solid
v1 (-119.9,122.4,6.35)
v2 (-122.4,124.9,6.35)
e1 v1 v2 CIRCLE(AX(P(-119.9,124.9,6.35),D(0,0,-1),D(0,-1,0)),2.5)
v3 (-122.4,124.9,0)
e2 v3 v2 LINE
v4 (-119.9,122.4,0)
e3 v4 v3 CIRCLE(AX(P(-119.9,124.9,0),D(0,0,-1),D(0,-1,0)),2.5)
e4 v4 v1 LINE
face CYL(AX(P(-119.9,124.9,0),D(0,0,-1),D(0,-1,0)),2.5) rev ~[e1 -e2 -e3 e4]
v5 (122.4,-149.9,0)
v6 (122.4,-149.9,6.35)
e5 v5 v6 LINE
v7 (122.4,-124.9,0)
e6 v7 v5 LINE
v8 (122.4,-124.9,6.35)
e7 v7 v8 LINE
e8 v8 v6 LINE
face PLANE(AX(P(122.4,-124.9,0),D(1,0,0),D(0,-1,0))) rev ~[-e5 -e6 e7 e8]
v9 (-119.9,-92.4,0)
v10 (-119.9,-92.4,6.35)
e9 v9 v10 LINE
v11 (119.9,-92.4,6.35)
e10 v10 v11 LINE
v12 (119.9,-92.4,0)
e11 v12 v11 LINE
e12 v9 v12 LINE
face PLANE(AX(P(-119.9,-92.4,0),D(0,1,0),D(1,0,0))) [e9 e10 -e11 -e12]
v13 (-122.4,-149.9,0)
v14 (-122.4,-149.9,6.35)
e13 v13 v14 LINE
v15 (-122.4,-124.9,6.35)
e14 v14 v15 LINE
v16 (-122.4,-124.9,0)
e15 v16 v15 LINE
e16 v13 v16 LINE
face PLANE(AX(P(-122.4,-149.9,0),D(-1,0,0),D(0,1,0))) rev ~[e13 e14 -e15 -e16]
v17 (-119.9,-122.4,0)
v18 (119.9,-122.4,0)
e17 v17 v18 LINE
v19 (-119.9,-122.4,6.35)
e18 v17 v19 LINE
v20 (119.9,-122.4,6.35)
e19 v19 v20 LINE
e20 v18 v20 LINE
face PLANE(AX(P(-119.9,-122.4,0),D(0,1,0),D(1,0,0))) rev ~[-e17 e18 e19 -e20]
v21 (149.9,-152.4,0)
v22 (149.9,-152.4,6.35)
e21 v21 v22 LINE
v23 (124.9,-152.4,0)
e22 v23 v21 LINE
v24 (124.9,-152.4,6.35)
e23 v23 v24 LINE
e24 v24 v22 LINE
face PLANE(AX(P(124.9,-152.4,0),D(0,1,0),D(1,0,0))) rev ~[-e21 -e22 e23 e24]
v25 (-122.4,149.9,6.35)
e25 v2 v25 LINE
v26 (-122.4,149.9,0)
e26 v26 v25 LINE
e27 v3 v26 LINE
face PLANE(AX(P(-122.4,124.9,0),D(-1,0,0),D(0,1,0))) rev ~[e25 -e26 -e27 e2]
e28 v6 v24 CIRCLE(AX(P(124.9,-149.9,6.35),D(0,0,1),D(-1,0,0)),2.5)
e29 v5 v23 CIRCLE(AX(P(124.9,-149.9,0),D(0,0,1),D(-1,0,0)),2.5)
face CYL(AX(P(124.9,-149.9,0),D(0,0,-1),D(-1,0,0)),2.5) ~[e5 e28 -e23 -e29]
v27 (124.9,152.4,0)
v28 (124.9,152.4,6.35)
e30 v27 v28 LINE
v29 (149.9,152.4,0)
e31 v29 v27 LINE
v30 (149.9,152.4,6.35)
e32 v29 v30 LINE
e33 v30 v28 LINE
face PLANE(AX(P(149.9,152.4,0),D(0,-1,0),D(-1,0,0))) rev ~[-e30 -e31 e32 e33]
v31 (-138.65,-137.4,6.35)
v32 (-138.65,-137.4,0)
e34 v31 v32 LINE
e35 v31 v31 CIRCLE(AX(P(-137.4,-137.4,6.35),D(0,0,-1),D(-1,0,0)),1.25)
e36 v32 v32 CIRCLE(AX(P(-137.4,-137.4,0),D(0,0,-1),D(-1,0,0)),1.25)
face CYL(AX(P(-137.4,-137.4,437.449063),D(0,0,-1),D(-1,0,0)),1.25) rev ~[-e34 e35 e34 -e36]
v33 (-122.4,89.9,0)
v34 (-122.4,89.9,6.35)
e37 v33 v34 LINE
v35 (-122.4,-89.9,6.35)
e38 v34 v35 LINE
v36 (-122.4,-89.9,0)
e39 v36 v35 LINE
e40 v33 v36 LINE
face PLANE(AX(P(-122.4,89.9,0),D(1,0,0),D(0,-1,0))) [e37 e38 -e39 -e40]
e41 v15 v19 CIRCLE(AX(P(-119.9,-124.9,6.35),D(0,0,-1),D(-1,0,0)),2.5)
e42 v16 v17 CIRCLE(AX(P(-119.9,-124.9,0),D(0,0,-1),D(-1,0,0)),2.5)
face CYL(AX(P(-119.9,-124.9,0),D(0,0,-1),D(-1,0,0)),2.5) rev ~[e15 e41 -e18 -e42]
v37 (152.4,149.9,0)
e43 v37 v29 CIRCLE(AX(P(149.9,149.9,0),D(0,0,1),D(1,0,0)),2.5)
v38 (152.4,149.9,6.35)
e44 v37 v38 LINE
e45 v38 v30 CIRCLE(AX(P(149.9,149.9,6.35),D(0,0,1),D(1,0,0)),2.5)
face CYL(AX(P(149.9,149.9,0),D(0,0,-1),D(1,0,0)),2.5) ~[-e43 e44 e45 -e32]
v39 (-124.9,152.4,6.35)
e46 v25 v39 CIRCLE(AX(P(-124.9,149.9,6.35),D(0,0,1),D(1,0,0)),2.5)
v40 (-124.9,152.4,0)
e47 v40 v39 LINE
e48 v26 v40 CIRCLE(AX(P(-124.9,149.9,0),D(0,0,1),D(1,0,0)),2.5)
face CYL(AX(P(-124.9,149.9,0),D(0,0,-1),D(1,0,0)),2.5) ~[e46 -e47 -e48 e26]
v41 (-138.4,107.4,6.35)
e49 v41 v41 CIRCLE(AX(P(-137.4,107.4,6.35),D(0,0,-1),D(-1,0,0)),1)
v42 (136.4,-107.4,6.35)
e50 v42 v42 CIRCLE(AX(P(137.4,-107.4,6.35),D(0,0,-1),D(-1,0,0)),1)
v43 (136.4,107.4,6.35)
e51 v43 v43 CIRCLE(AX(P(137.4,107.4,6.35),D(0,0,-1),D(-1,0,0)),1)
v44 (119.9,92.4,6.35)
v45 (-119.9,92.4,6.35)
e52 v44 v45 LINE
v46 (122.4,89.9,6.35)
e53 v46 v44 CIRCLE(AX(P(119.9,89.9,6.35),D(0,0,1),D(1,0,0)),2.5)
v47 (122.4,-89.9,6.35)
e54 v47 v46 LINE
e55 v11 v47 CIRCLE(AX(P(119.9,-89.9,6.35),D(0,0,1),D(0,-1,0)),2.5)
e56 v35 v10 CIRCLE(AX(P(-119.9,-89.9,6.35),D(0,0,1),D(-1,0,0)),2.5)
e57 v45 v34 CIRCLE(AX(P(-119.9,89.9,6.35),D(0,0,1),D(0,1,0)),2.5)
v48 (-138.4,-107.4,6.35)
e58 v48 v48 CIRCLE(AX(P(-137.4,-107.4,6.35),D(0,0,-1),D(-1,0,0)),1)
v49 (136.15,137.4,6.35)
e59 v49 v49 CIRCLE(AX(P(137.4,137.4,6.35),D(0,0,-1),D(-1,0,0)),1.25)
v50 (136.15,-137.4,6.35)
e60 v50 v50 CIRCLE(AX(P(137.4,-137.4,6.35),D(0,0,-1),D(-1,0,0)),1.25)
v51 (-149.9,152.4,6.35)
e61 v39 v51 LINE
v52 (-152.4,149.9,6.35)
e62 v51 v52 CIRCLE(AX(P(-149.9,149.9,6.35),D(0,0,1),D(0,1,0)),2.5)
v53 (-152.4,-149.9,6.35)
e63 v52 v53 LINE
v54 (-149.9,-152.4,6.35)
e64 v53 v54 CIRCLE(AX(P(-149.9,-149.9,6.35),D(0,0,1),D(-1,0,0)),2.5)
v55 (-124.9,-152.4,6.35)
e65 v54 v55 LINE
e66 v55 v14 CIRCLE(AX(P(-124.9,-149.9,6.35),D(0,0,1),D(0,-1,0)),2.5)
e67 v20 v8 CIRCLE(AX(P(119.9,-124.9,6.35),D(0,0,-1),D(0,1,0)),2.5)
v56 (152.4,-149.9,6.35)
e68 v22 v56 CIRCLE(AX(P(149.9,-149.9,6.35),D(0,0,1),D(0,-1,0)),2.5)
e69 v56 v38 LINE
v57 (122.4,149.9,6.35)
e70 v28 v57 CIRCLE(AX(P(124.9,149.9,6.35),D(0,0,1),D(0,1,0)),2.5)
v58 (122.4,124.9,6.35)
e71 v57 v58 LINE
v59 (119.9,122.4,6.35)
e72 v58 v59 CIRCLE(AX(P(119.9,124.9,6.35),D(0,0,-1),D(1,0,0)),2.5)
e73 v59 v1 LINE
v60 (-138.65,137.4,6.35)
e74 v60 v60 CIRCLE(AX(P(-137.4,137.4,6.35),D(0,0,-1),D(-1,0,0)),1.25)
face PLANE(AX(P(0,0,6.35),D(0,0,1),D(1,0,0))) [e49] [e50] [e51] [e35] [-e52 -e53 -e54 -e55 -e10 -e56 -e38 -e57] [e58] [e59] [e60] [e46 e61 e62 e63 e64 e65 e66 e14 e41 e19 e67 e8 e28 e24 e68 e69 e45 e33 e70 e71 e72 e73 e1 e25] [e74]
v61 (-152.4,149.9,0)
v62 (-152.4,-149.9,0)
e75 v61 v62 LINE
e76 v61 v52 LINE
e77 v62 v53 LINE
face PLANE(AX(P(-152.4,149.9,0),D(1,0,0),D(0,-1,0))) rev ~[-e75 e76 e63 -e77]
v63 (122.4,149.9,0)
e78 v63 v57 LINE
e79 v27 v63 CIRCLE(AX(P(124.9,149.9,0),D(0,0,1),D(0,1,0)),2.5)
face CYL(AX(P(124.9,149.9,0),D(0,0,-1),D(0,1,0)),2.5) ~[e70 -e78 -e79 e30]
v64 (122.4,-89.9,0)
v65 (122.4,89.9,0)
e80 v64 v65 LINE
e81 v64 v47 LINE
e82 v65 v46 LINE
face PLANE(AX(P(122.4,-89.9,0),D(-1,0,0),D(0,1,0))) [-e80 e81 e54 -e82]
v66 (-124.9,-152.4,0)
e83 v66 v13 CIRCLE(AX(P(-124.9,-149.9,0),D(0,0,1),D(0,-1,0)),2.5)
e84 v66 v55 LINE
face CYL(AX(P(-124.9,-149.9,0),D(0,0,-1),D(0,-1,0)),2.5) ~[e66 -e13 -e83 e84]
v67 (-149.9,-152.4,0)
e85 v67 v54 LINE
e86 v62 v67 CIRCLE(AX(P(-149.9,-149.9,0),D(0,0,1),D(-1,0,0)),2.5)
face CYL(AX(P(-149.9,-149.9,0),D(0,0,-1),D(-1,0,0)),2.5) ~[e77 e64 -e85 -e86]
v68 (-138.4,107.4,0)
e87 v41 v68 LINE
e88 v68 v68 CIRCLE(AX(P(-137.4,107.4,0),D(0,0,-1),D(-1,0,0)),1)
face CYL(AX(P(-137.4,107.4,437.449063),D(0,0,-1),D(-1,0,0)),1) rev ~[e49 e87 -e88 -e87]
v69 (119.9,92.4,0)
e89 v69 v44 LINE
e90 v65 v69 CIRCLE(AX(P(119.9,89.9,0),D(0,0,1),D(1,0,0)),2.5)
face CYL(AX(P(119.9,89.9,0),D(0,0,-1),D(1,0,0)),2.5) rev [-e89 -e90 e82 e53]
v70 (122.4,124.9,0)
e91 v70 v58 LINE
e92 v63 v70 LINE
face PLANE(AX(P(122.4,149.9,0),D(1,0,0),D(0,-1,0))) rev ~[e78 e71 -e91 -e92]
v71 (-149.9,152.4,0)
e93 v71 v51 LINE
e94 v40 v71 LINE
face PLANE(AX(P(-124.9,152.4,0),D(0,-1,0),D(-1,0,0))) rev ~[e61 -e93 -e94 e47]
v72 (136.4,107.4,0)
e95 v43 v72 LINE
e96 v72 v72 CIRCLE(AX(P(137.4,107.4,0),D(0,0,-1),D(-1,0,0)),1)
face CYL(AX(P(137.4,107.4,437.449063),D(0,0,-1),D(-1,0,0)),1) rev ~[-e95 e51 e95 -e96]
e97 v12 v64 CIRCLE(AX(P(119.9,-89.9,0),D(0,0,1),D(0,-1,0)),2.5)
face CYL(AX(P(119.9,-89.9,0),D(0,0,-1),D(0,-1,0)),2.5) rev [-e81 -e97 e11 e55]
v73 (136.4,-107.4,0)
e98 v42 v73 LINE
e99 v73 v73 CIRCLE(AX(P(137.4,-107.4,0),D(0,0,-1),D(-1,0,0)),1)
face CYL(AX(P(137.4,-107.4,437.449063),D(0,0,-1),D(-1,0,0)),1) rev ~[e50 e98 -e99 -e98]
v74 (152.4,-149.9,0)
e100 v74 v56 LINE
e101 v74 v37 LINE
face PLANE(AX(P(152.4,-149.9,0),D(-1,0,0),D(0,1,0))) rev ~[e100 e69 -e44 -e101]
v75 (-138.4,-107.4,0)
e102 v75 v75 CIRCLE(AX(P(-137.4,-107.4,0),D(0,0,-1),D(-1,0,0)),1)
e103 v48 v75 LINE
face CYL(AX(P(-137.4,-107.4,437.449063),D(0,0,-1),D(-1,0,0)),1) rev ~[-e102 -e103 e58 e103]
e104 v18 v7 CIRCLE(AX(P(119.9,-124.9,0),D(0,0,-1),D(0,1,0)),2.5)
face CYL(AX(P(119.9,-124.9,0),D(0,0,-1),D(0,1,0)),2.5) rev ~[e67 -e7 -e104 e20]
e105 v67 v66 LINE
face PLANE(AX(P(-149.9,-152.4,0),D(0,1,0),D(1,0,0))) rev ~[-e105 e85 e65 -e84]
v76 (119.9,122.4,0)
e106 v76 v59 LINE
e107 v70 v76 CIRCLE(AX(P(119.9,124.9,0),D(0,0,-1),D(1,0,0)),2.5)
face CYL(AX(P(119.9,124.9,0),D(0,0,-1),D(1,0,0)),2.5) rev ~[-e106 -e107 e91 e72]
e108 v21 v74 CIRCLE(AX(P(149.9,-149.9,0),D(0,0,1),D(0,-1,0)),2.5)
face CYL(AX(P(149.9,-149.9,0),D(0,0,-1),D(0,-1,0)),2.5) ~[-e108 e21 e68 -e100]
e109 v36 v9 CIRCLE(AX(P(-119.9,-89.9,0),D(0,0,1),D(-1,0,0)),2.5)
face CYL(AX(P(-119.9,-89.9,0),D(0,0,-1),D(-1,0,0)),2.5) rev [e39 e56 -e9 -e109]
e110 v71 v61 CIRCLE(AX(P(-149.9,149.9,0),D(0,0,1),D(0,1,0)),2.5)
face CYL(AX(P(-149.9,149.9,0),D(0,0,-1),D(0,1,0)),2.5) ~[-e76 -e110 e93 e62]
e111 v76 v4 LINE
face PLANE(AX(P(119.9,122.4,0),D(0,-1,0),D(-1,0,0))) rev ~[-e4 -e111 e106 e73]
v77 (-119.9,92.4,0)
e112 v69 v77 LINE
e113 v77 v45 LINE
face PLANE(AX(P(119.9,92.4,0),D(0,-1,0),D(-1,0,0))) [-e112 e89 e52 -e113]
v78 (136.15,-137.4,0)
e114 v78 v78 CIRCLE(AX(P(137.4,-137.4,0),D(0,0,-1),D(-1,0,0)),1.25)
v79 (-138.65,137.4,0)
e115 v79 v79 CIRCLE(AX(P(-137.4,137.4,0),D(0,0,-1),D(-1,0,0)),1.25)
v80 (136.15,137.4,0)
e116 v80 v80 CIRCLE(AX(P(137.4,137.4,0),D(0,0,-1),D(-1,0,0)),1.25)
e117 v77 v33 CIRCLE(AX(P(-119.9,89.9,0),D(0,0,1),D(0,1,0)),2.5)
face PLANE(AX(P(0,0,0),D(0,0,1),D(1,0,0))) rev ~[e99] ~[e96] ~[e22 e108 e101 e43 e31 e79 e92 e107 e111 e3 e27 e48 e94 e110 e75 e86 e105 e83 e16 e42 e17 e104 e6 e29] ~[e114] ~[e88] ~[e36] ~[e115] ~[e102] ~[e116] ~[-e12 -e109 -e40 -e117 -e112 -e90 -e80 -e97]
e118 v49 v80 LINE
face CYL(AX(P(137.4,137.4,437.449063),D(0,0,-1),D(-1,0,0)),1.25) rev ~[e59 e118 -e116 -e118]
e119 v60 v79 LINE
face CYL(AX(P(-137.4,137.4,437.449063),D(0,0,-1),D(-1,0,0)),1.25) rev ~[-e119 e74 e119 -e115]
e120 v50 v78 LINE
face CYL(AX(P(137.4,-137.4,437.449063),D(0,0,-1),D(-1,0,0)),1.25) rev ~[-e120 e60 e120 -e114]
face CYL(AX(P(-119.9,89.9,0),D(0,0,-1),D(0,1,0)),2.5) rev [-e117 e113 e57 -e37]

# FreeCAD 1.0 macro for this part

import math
import FreeCAD as App
import Part
import Sketcher
Q = App.Units.Quantity

doc = App.newDocument("Part")
body = doc.addObject("PartDesign::Body", "Body")

sketch1 = doc.addObject("Sketcher::SketchObject", "Sketch")
body.addObject(sketch1)
sketch1.AttachmentSupport = (doc.XY_Plane, [""])
sketch1.MapMode = "FlatFace"
sketch1.addGeometry(Part.LineSegment(App.Vector(-119.9, -122.4, 0), App.Vector(119.9, -122.4, 0)), False)
sketch1.addGeometry(Part.ArcOfCircle(Part.Circle(App.Vector(119.9, -124.9, 0), App.Vector(0, 0, 1), 2.5), math.radians(0), math.radians(90)), False)
sketch1.addGeometry(Part.LineSegment(App.Vector(122.4, -124.9, 0), App.Vector(122.4, -149.9, 0)), False)
sketch1.addGeometry(Part.ArcOfCircle(Part.Circle(App.Vector(124.9, -149.9, 0), App.Vector(0, 0, 1), 2.5), math.radians(180), math.radians(270)), False)
sketch1.addGeometry(Part.LineSegment(App.Vector(124.9, -152.4, 0), App.Vector(149.9, -152.4, 0)), False)
sketch1.addGeometry(Part.ArcOfCircle(Part.Circle(App.Vector(149.9, -149.9, 0), App.Vector(0, 0, 1), 2.5), math.radians(-90), math.radians(0)), False)
sketch1.addGeometry(Part.LineSegment(App.Vector(152.4, -149.9, 0), App.Vector(152.4, 149.9, 0)), False)
sketch1.addGeometry(Part.ArcOfCircle(Part.Circle(App.Vector(149.9, 149.9, 0), App.Vector(0, 0, 1), 2.5), math.radians(0), math.radians(90)), False)
sketch1.addGeometry(Part.LineSegment(App.Vector(149.9, 152.4, 0), App.Vector(124.9, 152.4, 0)), False)
sketch1.addGeometry(Part.ArcOfCircle(Part.Circle(App.Vector(124.9, 149.9, 0), App.Vector(0, 0, 1), 2.5), math.radians(90), math.radians(180)), False)
sketch1.addGeometry(Part.LineSegment(App.Vector(122.4, 149.9, 0), App.Vector(122.4, 124.9, 0)), False)
sketch1.addGeometry(Part.ArcOfCircle(Part.Circle(App.Vector(119.9, 124.9, 0), App.Vector(0, 0, 1), 2.5), math.radians(-90), math.radians(0)), False)
sketch1.addGeometry(Part.LineSegment(App.Vector(119.9, 122.4, 0), App.Vector(-119.9, 122.4, 0)), False)
sketch1.addGeometry(Part.ArcOfCircle(Part.Circle(App.Vector(-119.9, 124.9, 0), App.Vector(0, 0, 1), 2.5), math.radians(180), math.radians(270)), False)
sketch1.addGeometry(Part.LineSegment(App.Vector(-122.4, 124.9, 0), App.Vector(-122.4, 149.9, 0)), False)
sketch1.addGeometry(Part.ArcOfCircle(Part.Circle(App.Vector(-124.9, 149.9, 0), App.Vector(0, 0, 1), 2.5), math.radians(0), math.radians(90)), False)
sketch1.addGeometry(Part.LineSegment(App.Vector(-124.9, 152.4, 0), App.Vector(-149.9, 152.4, 0)), False)
sketch1.addGeometry(Part.ArcOfCircle(Part.Circle(App.Vector(-149.9, 149.9, 0), App.Vector(0, 0, 1), 2.5), math.radians(90), math.radians(180)), False)
sketch1.addGeometry(Part.LineSegment(App.Vector(-152.4, 149.9, 0), App.Vector(-152.4, -149.9, 0)), False)
sketch1.addGeometry(Part.ArcOfCircle(Part.Circle(App.Vector(-149.9, -149.9, 0), App.Vector(0, 0, 1), 2.5), math.radians(180), math.radians(270)), False)
sketch1.addGeometry(Part.LineSegment(App.Vector(-149.9, -152.4, 0), App.Vector(-124.9, -152.4, 0)), False)
sketch1.addGeometry(Part.ArcOfCircle(Part.Circle(App.Vector(-124.9, -149.9, 0), App.Vector(0, 0, 1), 2.5), math.radians(-90), math.radians(0)), False)
sketch1.addGeometry(Part.LineSegment(App.Vector(-122.4, -149.9, 0), App.Vector(-122.4, -124.9, 0)), False)
sketch1.addGeometry(Part.ArcOfCircle(Part.Circle(App.Vector(-119.9, -124.9, 0), App.Vector(0, 0, 1), 2.5), math.radians(90), math.radians(180)), False)
sketch1.addGeometry(Part.LineSegment(App.Vector(119.9, -92.4, 0), App.Vector(-119.9, -92.4, 0)), False)
sketch1.addGeometry(Part.ArcOfCircle(Part.Circle(App.Vector(-119.9, -89.9, 0), App.Vector(0, 0, 1), 2.5), math.radians(180), math.radians(270)), False)
sketch1.addGeometry(Part.LineSegment(App.Vector(-122.4, -89.9, 0), App.Vector(-122.4, 89.9, 0)), False)
sketch1.addGeometry(Part.ArcOfCircle(Part.Circle(App.Vector(-119.9, 89.9, 0), App.Vector(0, 0, 1), 2.5), math.radians(90), math.radians(180)), False)
sketch1.addGeometry(Part.LineSegment(App.Vector(-119.9, 92.4, 0), App.Vector(119.9, 92.4, 0)), False)
sketch1.addGeometry(Part.ArcOfCircle(Part.Circle(App.Vector(119.9, 89.9, 0), App.Vector(0, 0, 1), 2.5), math.radians(0), math.radians(90)), False)
sketch1.addGeometry(Part.LineSegment(App.Vector(122.4, 89.9, 0), App.Vector(122.4, -89.9, 0)), False)
sketch1.addGeometry(Part.ArcOfCircle(Part.Circle(App.Vector(119.9, -89.9, 0), App.Vector(0, 0, 1), 2.5), math.radians(-90), math.radians(0)), False)
sketch1.addConstraint(Sketcher.Constraint("Tangent", 0, 2, 1, 2))
sketch1.addConstraint(Sketcher.Constraint("Tangent", 1, 1, 2, 1))
sketch1.addConstraint(Sketcher.Constraint("Tangent", 2, 2, 3, 1))
sketch1.addConstraint(Sketcher.Constraint("Tangent", 3, 2, 4, 1))
sketch1.addConstraint(Sketcher.Constraint("Tangent", 4, 2, 5, 1))
sketch1.addConstraint(Sketcher.Constraint("Tangent", 5, 2, 6, 1))
sketch1.addConstraint(Sketcher.Constraint("Tangent", 6, 2, 7, 1))
sketch1.addConstraint(Sketcher.Constraint("Tangent", 7, 2, 8, 1))
sketch1.addConstraint(Sketcher.Constraint("Tangent", 8, 2, 9, 1))
sketch1.addConstraint(Sketcher.Constraint("Tangent", 9, 2, 10, 1))
sketch1.addConstraint(Sketcher.Constraint("Tangent", 10, 2, 11, 2))
sketch1.addConstraint(Sketcher.Constraint("Tangent", 11, 1, 12, 1))
sketch1.addConstraint(Sketcher.Constraint("Tangent", 12, 2, 13, 2))
sketch1.addConstraint(Sketcher.Constraint("Tangent", 13, 1, 14, 1))
sketch1.addConstraint(Sketcher.Constraint("Tangent", 14, 2, 15, 1))
sketch1.addConstraint(Sketcher.Constraint("Tangent", 15, 2, 16, 1))
sketch1.addConstraint(Sketcher.Constraint("Tangent", 16, 2, 17, 1))
sketch1.addConstraint(Sketcher.Constraint("Tangent", 17, 2, 18, 1))
sketch1.addConstraint(Sketcher.Constraint("Tangent", 18, 2, 19, 1))
sketch1.addConstraint(Sketcher.Constraint("Tangent", 19, 2, 20, 1))
sketch1.addConstraint(Sketcher.Constraint("Tangent", 20, 2, 21, 1))
sketch1.addConstraint(Sketcher.Constraint("Tangent", 21, 2, 22, 1))
sketch1.addConstraint(Sketcher.Constraint("Tangent", 22, 2, 23, 2))
sketch1.addConstraint(Sketcher.Constraint("Tangent", 23, 1, 0, 1))
sketch1.addConstraint(Sketcher.Constraint("Tangent", 24, 2, 25, 2))
sketch1.addConstraint(Sketcher.Constraint("Tangent", 25, 1, 26, 1))
sketch1.addConstraint(Sketcher.Constraint("Tangent", 26, 2, 27, 2))
sketch1.addConstraint(Sketcher.Constraint("Tangent", 27, 1, 28, 1))
sketch1.addConstraint(Sketcher.Constraint("Tangent", 28, 2, 29, 2))
sketch1.addConstraint(Sketcher.Constraint("Tangent", 29, 1, 30, 1))
sketch1.addConstraint(Sketcher.Constraint("Tangent", 30, 2, 31, 2))
sketch1.addConstraint(Sketcher.Constraint("Tangent", 31, 1, 24, 1))
sketch1.addConstraint(Sketcher.Constraint("Horizontal", 0))
sketch1.addConstraint(Sketcher.Constraint("Vertical", 2))
sketch1.addConstraint(Sketcher.Constraint("Horizontal", 4))
sketch1.addConstraint(Sketcher.Constraint("Vertical", 6))
sketch1.addConstraint(Sketcher.Constraint("Horizontal", 8))
sketch1.addConstraint(Sketcher.Constraint("Vertical", 10))
sketch1.addConstraint(Sketcher.Constraint("Horizontal", 12))
sketch1.addConstraint(Sketcher.Constraint("Vertical", 14))
sketch1.addConstraint(Sketcher.Constraint("Horizontal", 16))
sketch1.addConstraint(Sketcher.Constraint("Vertical", 18))
sketch1.addConstraint(Sketcher.Constraint("Horizontal", 20))
sketch1.addConstraint(Sketcher.Constraint("Vertical", 22))
sketch1.addConstraint(Sketcher.Constraint("Horizontal", 24))
sketch1.addConstraint(Sketcher.Constraint("Vertical", 26))
sketch1.addConstraint(Sketcher.Constraint("Horizontal", 28))
sketch1.addConstraint(Sketcher.Constraint("Vertical", 30))
sketch1.addConstraint(Sketcher.Constraint("Equal", 1, 3))
sketch1.addConstraint(Sketcher.Constraint("Equal", 3, 5))
sketch1.addConstraint(Sketcher.Constraint("Equal", 5, 7))
sketch1.addConstraint(Sketcher.Constraint("Equal", 7, 9))
sketch1.addConstraint(Sketcher.Constraint("Equal", 9, 11))
sketch1.addConstraint(Sketcher.Constraint("Equal", 11, 13))
sketch1.addConstraint(Sketcher.Constraint("Equal", 13, 15))
sketch1.addConstraint(Sketcher.Constraint("Equal", 15, 17))
sketch1.addConstraint(Sketcher.Constraint("Equal", 17, 19))
sketch1.addConstraint(Sketcher.Constraint("Equal", 19, 21))
sketch1.addConstraint(Sketcher.Constraint("Equal", 21, 23))
sketch1.addConstraint(Sketcher.Constraint("Equal", 23, 25))
sketch1.addConstraint(Sketcher.Constraint("Equal", 25, 27))
sketch1.addConstraint(Sketcher.Constraint("Equal", 27, 29))
sketch1.addConstraint(Sketcher.Constraint("Equal", 29, 31))
sketch1.addConstraint(Sketcher.Constraint("Symmetric", 1, 3, 13, 3, -1, 1))
sketch1.addConstraint(Sketcher.Constraint("Symmetric", 5, 3, 17, 3, -1, 1))
sketch1.addConstraint(Sketcher.Constraint("Symmetric", 9, 3, 21, 3, -1, 1))
sketch1.addConstraint(Sketcher.Constraint("Symmetric", 25, 3, 29, 3, -1, 1))
sketch1.addConstraint(Sketcher.Constraint("Symmetric", 9, 3, 15, 3, -2))
sketch1.addConstraint(Sketcher.Constraint("Vertical", 23, 3, 25, 3))
sketch1.addConstraint(Sketcher.Constraint("Equal", 20, 2))
sketch1.addConstraint(Sketcher.Constraint("Radius", 1, Q("2.5 mm")))
sketch1.addConstraint(Sketcher.Constraint("DistanceX", 4, 1, 4, 2, Q("25 mm")))
sketch1.addConstraint(Sketcher.Constraint("DistanceX", 0, 1, 0, 2, Q("239.8 mm")))
sketch1.addConstraint(Sketcher.Constraint("DistanceY", 6, 1, 6, 2, Q("299.8 mm")))
sketch1.addConstraint(Sketcher.Constraint("DistanceY", 26, 1, 26, 2, Q("179.8 mm")))
pad1 = doc.addObject("PartDesign::Pad", "Pad")
body.addObject(pad1)
pad1.Profile = sketch1
pad1.Length = 6.35

sketch2 = doc.addObject("Sketcher::SketchObject", "Sketch001")
body.addObject(sketch2)
sketch2.AttachmentSupport = (doc.XY_Plane, [""])
sketch2.MapMode = "FlatFace"
sketch2.AttachmentOffset = App.Placement(App.Vector(0, 0, 6.35), App.Rotation())
sketch2.addGeometry(Part.Circle(App.Vector(-137.4, 107.4, 0), App.Vector(0, 0, 1), 1), False)
sketch2.addGeometry(Part.Circle(App.Vector(-137.4, -107.4, 0), App.Vector(0, 0, 1), 1), False)
sketch2.addGeometry(Part.Circle(App.Vector(137.4, -107.4, 0), App.Vector(0, 0, 1), 1), False)
sketch2.addGeometry(Part.Circle(App.Vector(137.4, 107.4, 0), App.Vector(0, 0, 1), 1), False)
sketch2.addConstraint(Sketcher.Constraint("Equal", 0, 1))
sketch2.addConstraint(Sketcher.Constraint("Equal", 1, 2))
sketch2.addConstraint(Sketcher.Constraint("Equal", 2, 3))
sketch2.addConstraint(Sketcher.Constraint("Symmetric", 0, 3, 2, 3, -1, 1))
sketch2.addConstraint(Sketcher.Constraint("Symmetric", 1, 3, 3, 3, -1, 1))
sketch2.addConstraint(Sketcher.Constraint("Symmetric", 1, 3, 2, 3, -2))
sketch2.addConstraint(Sketcher.Constraint("Diameter", 0, Q("2 mm")))
sketch2.addConstraint(Sketcher.Constraint("DistanceX", 0, 3, -1, 1, Q("137.4 mm")))
sketch2.addConstraint(Sketcher.Constraint("DistanceY", -1, 1, 0, 3, Q("107.4 mm")))
doc.recompute()
hole = doc.addObject("PartDesign::Hole", "Hole")
body.addObject(hole)
hole.Profile = sketch2
hole.ThreadType = "None"
hole.Diameter = 2
hole.DepthType = "ThroughAll"

sketch3 = doc.addObject("Sketcher::SketchObject", "Sketch002")
body.addObject(sketch3)
sketch3.AttachmentSupport = (doc.XY_Plane, [""])
sketch3.MapMode = "FlatFace"
sketch3.AttachmentOffset = App.Placement(App.Vector(0, 0, 6.35), App.Rotation())
sketch3.addGeometry(Part.Circle(App.Vector(-137.4, 137.4, 0), App.Vector(0, 0, 1), 1.25), False)
sketch3.addGeometry(Part.Circle(App.Vector(137.4, 137.4, 0), App.Vector(0, 0, 1), 1.25), False)
sketch3.addGeometry(Part.Circle(App.Vector(137.4, -137.4, 0), App.Vector(0, 0, 1), 1.25), False)
sketch3.addGeometry(Part.Circle(App.Vector(-137.4, -137.4, 0), App.Vector(0, 0, 1), 1.25), False)
sketch3.addConstraint(Sketcher.Constraint("Equal", 0, 1))
sketch3.addConstraint(Sketcher.Constraint("Equal", 1, 2))
sketch3.addConstraint(Sketcher.Constraint("Equal", 2, 3))
sketch3.addConstraint(Sketcher.Constraint("Symmetric", 0, 3, 2, 3, -1, 1))
sketch3.addConstraint(Sketcher.Constraint("Symmetric", 1, 3, 3, 3, -1, 1))
sketch3.addConstraint(Sketcher.Constraint("Symmetric", 0, 3, 1, 3, -2))
sketch3.addConstraint(Sketcher.Constraint("Diameter", 0, Q("2.5 mm")))
sketch3.addConstraint(Sketcher.Constraint("DistanceX", 0, 3, -1, 1, Q("137.4 mm")))
sketch3.addConstraint(Sketcher.Constraint("DistanceY", -1, 1, 0, 3, Q("137.4 mm")))
doc.recompute()
hole2 = doc.addObject("PartDesign::Hole", "Hole001")
body.addObject(hole2)
hole2.Profile = sketch3
hole2.ThreadType = "None"
hole2.Diameter = 2.5
hole2.DepthType = "ThroughAll"

doc.recompute()
